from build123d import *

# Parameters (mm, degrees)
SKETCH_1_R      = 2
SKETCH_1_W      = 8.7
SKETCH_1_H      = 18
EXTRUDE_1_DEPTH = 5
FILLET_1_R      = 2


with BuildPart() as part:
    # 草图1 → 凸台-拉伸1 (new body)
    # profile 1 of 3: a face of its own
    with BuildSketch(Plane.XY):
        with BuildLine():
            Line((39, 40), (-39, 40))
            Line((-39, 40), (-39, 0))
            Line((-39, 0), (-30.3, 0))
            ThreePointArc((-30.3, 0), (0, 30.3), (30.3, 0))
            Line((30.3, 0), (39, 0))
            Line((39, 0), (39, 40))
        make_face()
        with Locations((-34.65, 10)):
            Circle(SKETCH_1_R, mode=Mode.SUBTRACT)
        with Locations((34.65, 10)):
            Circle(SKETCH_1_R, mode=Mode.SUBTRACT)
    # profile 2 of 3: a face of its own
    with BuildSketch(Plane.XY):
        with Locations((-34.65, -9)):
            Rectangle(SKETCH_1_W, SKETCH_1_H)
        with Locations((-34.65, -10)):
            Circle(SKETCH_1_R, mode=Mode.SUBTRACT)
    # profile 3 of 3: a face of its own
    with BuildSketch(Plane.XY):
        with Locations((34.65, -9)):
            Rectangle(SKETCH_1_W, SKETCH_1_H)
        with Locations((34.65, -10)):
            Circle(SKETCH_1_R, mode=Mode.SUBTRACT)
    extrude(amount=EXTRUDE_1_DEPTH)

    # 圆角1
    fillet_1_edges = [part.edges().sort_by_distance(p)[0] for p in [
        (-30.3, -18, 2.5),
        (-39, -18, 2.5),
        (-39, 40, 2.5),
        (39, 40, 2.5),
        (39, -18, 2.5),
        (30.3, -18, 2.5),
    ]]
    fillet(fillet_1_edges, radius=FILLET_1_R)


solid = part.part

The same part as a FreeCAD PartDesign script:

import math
import FreeCAD as App
import Part
import Sketcher


def edges_at(feature, points):
    """Names of the edges that pass closest to the given points."""
    edges = feature.Shape.Edges
    near = lambda p: min(range(len(edges)), key=lambda i: edges[i].distToShape(Part.Vertex(*p))[0])
    return sorted({f"Edge{near(p) + 1}" for p in points})

doc = App.newDocument("Part")
body = doc.addObject("PartDesign::Body", "Body")

sketch1 = doc.addObject("Sketcher::SketchObject", "Sketch")
body.addObject(sketch1)
sketch1.AttachmentSupport = (doc.XY_Plane, [""])
sketch1.MapMode = "FlatFace"
sketch1.addGeometry(Part.LineSegment(App.Vector(39, 40, 0), App.Vector(-39, 40, 0)), False)
sketch1.addGeometry(Part.LineSegment(App.Vector(-39, 40, 0), App.Vector(-39, -18, 0)), False)
sketch1.addGeometry(Part.LineSegment(App.Vector(-39, -18, 0), App.Vector(-30.3, -18, 0)), False)
sketch1.addGeometry(Part.LineSegment(App.Vector(-30.3, -18, 0), App.Vector(-30.3, 0, 0)), False)
sketch1.addGeometry(Part.ArcOfCircle(Part.Circle(App.Vector(0, 0, 0), App.Vector(0, 0, 1), 30.3), math.radians(0), math.radians(180)), False)
sketch1.addGeometry(Part.LineSegment(App.Vector(30.3, 0, 0), App.Vector(30.3, -18, 0)), False)
sketch1.addGeometry(Part.LineSegment(App.Vector(30.3, -18, 0), App.Vector(39, -18, 0)), False)
sketch1.addGeometry(Part.LineSegment(App.Vector(39, -18, 0), App.Vector(39, 40, 0)), False)
sketch1.addGeometry(Part.Circle(App.Vector(-34.6, 10, 0), App.Vector(0, 0, 1), 2), False)
sketch1.addGeometry(Part.Circle(App.Vector(34.6, 10, 0), App.Vector(0, 0, 1), 2), False)
sketch1.addGeometry(Part.Circle(App.Vector(34.6, -10, 0), App.Vector(0, 0, 1), 2), False)
sketch1.addGeometry(Part.Circle(App.Vector(-34.6, -10, 0), App.Vector(0, 0, 1), 2), False)
sketch1.addConstraint(Sketcher.Constraint("Coincident", 0, 2, 1, 1))
sketch1.addConstraint(Sketcher.Constraint("Coincident", 1, 2, 2, 1))
sketch1.addConstraint(Sketcher.Constraint("Coincident", 2, 2, 3, 1))
sketch1.addConstraint(Sketcher.Constraint("Tangent", 3, 2, 4, 2))
sketch1.addConstraint(Sketcher.Constraint("Tangent", 4, 1, 5, 1))
sketch1.addConstraint(Sketcher.Constraint("Coincident", 5, 2, 6, 1))
sketch1.addConstraint(Sketcher.Constraint("Coincident", 6, 2, 7, 1))
sketch1.addConstraint(Sketcher.Constraint("Coincident", 7, 2, 0, 1))
sketch1.addConstraint(Sketcher.Constraint("Horizontal", 0))
sketch1.addConstraint(Sketcher.Constraint("Vertical", 1))
sketch1.addConstraint(Sketcher.Constraint("Horizontal", 2))
sketch1.addConstraint(Sketcher.Constraint("Vertical", 3))
sketch1.addConstraint(Sketcher.Constraint("Vertical", 5))
sketch1.addConstraint(Sketcher.Constraint("Horizontal", 6))
sketch1.addConstraint(Sketcher.Constraint("Vertical", 7))
sketch1.addConstraint(Sketcher.Constraint("Coincident", 4, 3, -1, 1))
sketch1.addConstraint(Sketcher.Constraint("Equal", 8, 9))
sketch1.addConstraint(Sketcher.Constraint("Equal", 9, 10))
sketch1.addConstraint(Sketcher.Constraint("Equal", 10, 11))
sketch1.addConstraint(Sketcher.Constraint("Symmetric", 8, 3, 10, 3, -1, 1))
sketch1.addConstraint(Sketcher.Constraint("Symmetric", 9, 3, 11, 3, -1, 1))
sketch1.addConstraint(Sketcher.Constraint("Symmetric", 8, 3, 9, 3, -2))
sketch1.addConstraint(Sketcher.Constraint("Symmetric", 1, 2, 6, 2, -2))
sketch1.addConstraint(Sketcher.Constraint("Diameter", 8, 4.0))
sketch1.addConstraint(Sketcher.Constraint("Radius", 4, 30.3))
sketch1.addConstraint(Sketcher.Constraint("DistanceX", 0, 2, 0, 1, 78.0))
sketch1.addConstraint(Sketcher.Constraint("DistanceY", 1, 2, 1, 1, 58.0))
sketch1.addConstraint(Sketcher.Constraint("DistanceY", 3, 1, 3, 2, 18.0))
sketch1.addConstraint(Sketcher.Constraint("DistanceY", -1, 1, 8, 3, 10.0))
sketch1.addConstraint(Sketcher.Constraint("DistanceX", 8, 3, 9, 3, 69.3))
pad1 = doc.addObject("PartDesign::Pad", "Pad")
body.addObject(pad1)
pad1.Profile = sketch1
pad1.Length = 5
doc.recompute()

fillet = doc.addObject("PartDesign::Fillet", "Fillet")
body.addObject(fillet)
fillet.Base = (pad1, edges_at(pad1, [
    (-30.3, -18, 2.5),
    (-39, -18, 2.5),
    (-39, 40, 2.5),
    (39, 40, 2.5),
    (39, -18, 2.5),
    (30.3, -18, 2.5),
]))
fillet.Radius = 2

doc.recompute()
